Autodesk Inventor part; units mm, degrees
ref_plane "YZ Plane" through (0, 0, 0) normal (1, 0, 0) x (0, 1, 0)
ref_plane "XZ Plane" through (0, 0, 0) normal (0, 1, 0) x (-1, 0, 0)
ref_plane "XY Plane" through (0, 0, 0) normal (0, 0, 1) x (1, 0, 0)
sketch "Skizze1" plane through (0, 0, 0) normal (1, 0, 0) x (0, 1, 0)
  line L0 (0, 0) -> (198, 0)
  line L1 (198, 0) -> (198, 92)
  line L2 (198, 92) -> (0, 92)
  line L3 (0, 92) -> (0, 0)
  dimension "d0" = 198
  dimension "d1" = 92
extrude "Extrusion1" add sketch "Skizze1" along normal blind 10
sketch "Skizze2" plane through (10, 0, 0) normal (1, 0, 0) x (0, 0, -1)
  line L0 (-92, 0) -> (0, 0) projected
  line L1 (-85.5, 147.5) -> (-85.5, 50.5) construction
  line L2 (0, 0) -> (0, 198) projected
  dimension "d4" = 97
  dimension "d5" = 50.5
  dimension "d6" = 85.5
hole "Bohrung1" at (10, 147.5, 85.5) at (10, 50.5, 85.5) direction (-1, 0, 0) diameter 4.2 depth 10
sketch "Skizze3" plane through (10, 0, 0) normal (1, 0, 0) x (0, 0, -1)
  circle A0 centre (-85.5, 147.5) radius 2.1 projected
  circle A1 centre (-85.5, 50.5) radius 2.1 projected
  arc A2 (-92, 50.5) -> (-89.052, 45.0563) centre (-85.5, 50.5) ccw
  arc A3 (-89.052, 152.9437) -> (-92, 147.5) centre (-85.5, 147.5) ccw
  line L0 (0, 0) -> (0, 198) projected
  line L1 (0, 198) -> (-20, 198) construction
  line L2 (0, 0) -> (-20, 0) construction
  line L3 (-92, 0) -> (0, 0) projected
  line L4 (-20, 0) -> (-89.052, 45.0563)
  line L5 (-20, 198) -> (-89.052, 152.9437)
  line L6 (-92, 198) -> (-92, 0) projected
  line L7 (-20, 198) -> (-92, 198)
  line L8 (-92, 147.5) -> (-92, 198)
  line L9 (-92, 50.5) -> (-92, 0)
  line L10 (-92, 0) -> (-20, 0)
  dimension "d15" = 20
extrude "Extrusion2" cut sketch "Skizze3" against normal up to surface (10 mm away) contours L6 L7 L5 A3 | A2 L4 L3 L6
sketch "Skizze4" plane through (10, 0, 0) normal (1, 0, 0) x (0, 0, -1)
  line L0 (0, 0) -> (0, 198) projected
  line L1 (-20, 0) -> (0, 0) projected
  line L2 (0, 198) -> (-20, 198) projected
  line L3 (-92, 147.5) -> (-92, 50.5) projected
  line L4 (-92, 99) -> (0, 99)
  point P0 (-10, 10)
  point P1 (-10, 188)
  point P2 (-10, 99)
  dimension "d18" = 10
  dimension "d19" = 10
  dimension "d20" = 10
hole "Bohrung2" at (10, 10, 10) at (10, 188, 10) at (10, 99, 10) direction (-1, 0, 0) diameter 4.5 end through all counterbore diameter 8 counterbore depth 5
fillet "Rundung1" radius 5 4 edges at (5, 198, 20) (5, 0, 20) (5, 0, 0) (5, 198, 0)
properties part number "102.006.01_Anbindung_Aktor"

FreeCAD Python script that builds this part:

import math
import FreeCAD as App
import Part
import Sketcher
Q = App.Units.Quantity


def edges_at(feature, points):
    """Names of the edges that pass closest to the given points."""
    edges = feature.Shape.Edges
    near = lambda p: min(range(len(edges)), key=lambda i: edges[i].distToShape(Part.Vertex(*p))[0])
    return sorted({f"Edge{near(p) + 1}" for p in points})

doc = App.newDocument("Part")
body = doc.addObject("PartDesign::Body", "Body")

# Sketch on YZ plane
sketch1 = body.newObject("Sketcher::SketchObject", "Sketch")
sketch1.AttachmentSupport = (doc.getObject("YZ_Plane"), [""])
sketch1.MapMode = "FlatFace"
sketch1.addGeometry(Part.LineSegment(App.Vector(0, 92, 0), App.Vector(0, 0, 0)), False)
sketch1.addGeometry(Part.LineSegment(App.Vector(0, 0, 0), App.Vector(198, 0, 0)), False)
sketch1.addGeometry(Part.LineSegment(App.Vector(198, 0, 0), App.Vector(198, 92, 0)), False)
sketch1.addGeometry(Part.LineSegment(App.Vector(198, 92, 0), App.Vector(0, 92, 0)), False)
sketch1.addConstraint(Sketcher.Constraint("Coincident", 0, 2, 1, 1))
sketch1.addConstraint(Sketcher.Constraint("Coincident", 1, 2, 2, 1))
sketch1.addConstraint(Sketcher.Constraint("Coincident", 2, 2, 3, 1))
sketch1.addConstraint(Sketcher.Constraint("Coincident", 3, 2, 0, 1))
sketch1.addConstraint(Sketcher.Constraint("Vertical", 0))
sketch1.addConstraint(Sketcher.Constraint("Horizontal", 1))
sketch1.addConstraint(Sketcher.Constraint("Vertical", 2))
sketch1.addConstraint(Sketcher.Constraint("Horizontal", 3))
sketch1.addConstraint(Sketcher.Constraint("Coincident", 0, 2, -1, 1))
sketch1.addConstraint(Sketcher.Constraint("DistanceX", 1, 1, 1, 2, Q("198 mm")))
sketch1.addConstraint(Sketcher.Constraint("DistanceY", 0, 2, 0, 1, Q("92 mm")))
pad1 = body.newObject("PartDesign::Pad", "Pad")
pad1.Profile = sketch1
pad1.Length = 10

# Sketch on YZ plane
sketch2 = body.newObject("Sketcher::SketchObject", "Sketch001")
sketch2.AttachmentSupport = (doc.getObject("YZ_Plane"), [""])
sketch2.MapMode = "FlatFace"
sketch2.AttachmentOffset = App.Placement(App.Vector(0, 0, 10), App.Rotation())
sketch2.addGeometry(Part.Circle(App.Vector(147.5, 85.5, 0), App.Vector(0, 0, 1), 2.1), False)
sketch2.addGeometry(Part.Circle(App.Vector(50.5, 85.5, 0), App.Vector(0, 0, 1), 2.1), False)
sketch2.addConstraint(Sketcher.Constraint("Equal", 0, 1))
sketch2.addConstraint(Sketcher.Constraint("Horizontal", 0, 3, 1, 3))
sketch2.addConstraint(Sketcher.Constraint("Diameter", 0, Q("4.2 mm")))
sketch2.addConstraint(Sketcher.Constraint("DistanceX", 1, 3, 0, 3, Q("97 mm")))
sketch2.addConstraint(Sketcher.Constraint("DistanceX", -1, 1, 0, 3, Q("147.5 mm")))
sketch2.addConstraint(Sketcher.Constraint("DistanceY", -1, 1, 0, 3, Q("85.5 mm")))
doc.recompute()
hole = body.newObject("PartDesign::Hole", "Hole")
hole.Profile = sketch2
hole.ThreadType = "None"
hole.Diameter = 4.2
hole.DepthType = "Dimension"
hole.Depth = 10
hole.DrillPoint = "Flat"

# Sketch on YZ plane
sketch3 = body.newObject("Sketcher::SketchObject", "Sketch002")
sketch3.AttachmentSupport = (doc.getObject("YZ_Plane"), [""])
sketch3.MapMode = "FlatFace"
sketch3.AttachmentOffset = App.Placement(App.Vector(0, 0, 10), App.Rotation())
sketch3.addGeometry(Part.LineSegment(App.Vector(198, 92, 0), App.Vector(148, 92, 0)), False)
sketch3.addGeometry(Part.ArcOfCircle(Part.Circle(App.Vector(148, 86, 0), App.Vector(0, 0, 1), 7), math.radians(33), math.radians(90)), False)
sketch3.addGeometry(Part.LineSegment(App.Vector(153, 89, 0), App.Vector(198, 20, 0)), False)
sketch3.addGeometry(Part.LineSegment(App.Vector(198, 20, 0), App.Vector(198, 92, 0)), False)
sketch3.addGeometry(Part.ArcOfCircle(Part.Circle(App.Vector(50, 86, 0), App.Vector(0, 0, 1), 6), math.radians(90), math.radians(147)), False)
sketch3.addGeometry(Part.LineSegment(App.Vector(50, 92, 0), App.Vector(0, 92, 0)), False)
sketch3.addGeometry(Part.LineSegment(App.Vector(0, 92, 0), App.Vector(0, 20, 0)), False)
sketch3.addGeometry(Part.LineSegment(App.Vector(0, 20, 0), App.Vector(45, 89, 0)), False)
sketch3.addConstraint(Sketcher.Constraint("Tangent", 0, 2, 1, 2))
sketch3.addConstraint(Sketcher.Constraint("Tangent", 1, 1, 2, 1))
sketch3.addConstraint(Sketcher.Constraint("Coincident", 2, 2, 3, 1))
sketch3.addConstraint(Sketcher.Constraint("Coincident", 3, 2, 0, 1))
sketch3.addConstraint(Sketcher.Constraint("Tangent", 4, 1, 5, 1))
sketch3.addConstraint(Sketcher.Constraint("Coincident", 5, 2, 6, 1))
sketch3.addConstraint(Sketcher.Constraint("Coincident", 6, 2, 7, 1))
sketch3.addConstraint(Sketcher.Constraint("Tangent", 7, 2, 4, 2))
sketch3.addConstraint(Sketcher.Constraint("Horizontal", 0))
sketch3.addConstraint(Sketcher.Constraint("Vertical", 3))
sketch3.addConstraint(Sketcher.Constraint("Horizontal", 5))
sketch3.addConstraint(Sketcher.Constraint("Vertical", 6))
sketch3.addConstraint(Sketcher.Constraint("Equal", 1, 4))
sketch3.addConstraint(Sketcher.Constraint("PointOnObject", 5, 2, -2))
sketch3.addConstraint(Sketcher.Constraint("Horizontal", 1, 3, 4, 3))
sketch3.addConstraint(Sketcher.Constraint("Horizontal", 2, 2, 6, 2))
sketch3.addConstraint(Sketcher.Constraint("Horizontal", 1, 1, 7, 2))
sketch3.addConstraint(Sketcher.Constraint("DistanceY", -1, 1, 2, 2, Q("20 mm")))
sketch3.addConstraint(Sketcher.Constraint("Radius", 1, Q("6.5 mm")))
sketch3.addConstraint(Sketcher.Constraint("DistanceY", 3, 1, 3, 2, Q("72 mm")))
sketch3.addConstraint(Sketcher.Constraint("DistanceX", 0, 2, 0, 1, Q("50.5 mm")))
sketch3.addConstraint(Sketcher.Constraint("DistanceX", -1, 1, 2, 2, Q("198 mm")))
pocket1 = body.newObject("PartDesign::Pocket", "Pocket")
pocket1.Profile = sketch3
pocket1.Length = 10

# Sketch on YZ plane
sketch4 = body.newObject("Sketcher::SketchObject", "Sketch003")
sketch4.AttachmentSupport = (doc.getObject("YZ_Plane"), [""])
sketch4.MapMode = "FlatFace"
sketch4.AttachmentOffset = App.Placement(App.Vector(0, 0, 10), App.Rotation())
sketch4.addGeometry(Part.Circle(App.Vector(10, 10, 0), App.Vector(0, 0, 1), 2.2), False)
sketch4.addGeometry(Part.Circle(App.Vector(188, 10, 0), App.Vector(0, 0, 1), 2.2), False)
sketch4.addGeometry(Part.Circle(App.Vector(99, 10, 0), App.Vector(0, 0, 1), 2.2), False)
sketch4.addConstraint(Sketcher.Constraint("Equal", 0, 1))
sketch4.addConstraint(Sketcher.Constraint("Equal", 1, 2))
sketch4.addConstraint(Sketcher.Constraint("Horizontal", 0, 3, 1, 3))
sketch4.addConstraint(Sketcher.Constraint("Horizontal", 1, 3, 2, 3))
sketch4.addConstraint(Sketcher.Constraint("Diameter", 0, Q("4.5 mm")))
sketch4.addConstraint(Sketcher.Constraint("DistanceX", -1, 1, 0, 3, Q("10 mm")))
sketch4.addConstraint(Sketcher.Constraint("DistanceY", -1, 1, 0, 3, Q("10 mm")))
sketch4.addConstraint(Sketcher.Constraint("DistanceX", -1, 1, 1, 3, Q("188 mm")))
sketch4.addConstraint(Sketcher.Constraint("DistanceX", -1, 1, 2, 3, Q("99 mm")))
doc.recompute()
hole2 = body.newObject("PartDesign::Hole", "Hole001")
hole2.Profile = sketch4
hole2.ThreadType = "None"
hole2.Diameter = 4.5
hole2.DepthType = "ThroughAll"
hole2.HoleCutType = "Counterbore"
hole2.HoleCutDiameter = 8
hole2.HoleCutDepth = 5
doc.recompute()

fillet = body.newObject("PartDesign::Fillet", "Fillet")
fillet.Base = (hole2, edges_at(hole2, [
    (5, 198, 20),
    (5, 0, 20),
    (5, 0, 0),
    (5, 198, 0),
]))
fillet.Radius = 5

doc.recompute()
